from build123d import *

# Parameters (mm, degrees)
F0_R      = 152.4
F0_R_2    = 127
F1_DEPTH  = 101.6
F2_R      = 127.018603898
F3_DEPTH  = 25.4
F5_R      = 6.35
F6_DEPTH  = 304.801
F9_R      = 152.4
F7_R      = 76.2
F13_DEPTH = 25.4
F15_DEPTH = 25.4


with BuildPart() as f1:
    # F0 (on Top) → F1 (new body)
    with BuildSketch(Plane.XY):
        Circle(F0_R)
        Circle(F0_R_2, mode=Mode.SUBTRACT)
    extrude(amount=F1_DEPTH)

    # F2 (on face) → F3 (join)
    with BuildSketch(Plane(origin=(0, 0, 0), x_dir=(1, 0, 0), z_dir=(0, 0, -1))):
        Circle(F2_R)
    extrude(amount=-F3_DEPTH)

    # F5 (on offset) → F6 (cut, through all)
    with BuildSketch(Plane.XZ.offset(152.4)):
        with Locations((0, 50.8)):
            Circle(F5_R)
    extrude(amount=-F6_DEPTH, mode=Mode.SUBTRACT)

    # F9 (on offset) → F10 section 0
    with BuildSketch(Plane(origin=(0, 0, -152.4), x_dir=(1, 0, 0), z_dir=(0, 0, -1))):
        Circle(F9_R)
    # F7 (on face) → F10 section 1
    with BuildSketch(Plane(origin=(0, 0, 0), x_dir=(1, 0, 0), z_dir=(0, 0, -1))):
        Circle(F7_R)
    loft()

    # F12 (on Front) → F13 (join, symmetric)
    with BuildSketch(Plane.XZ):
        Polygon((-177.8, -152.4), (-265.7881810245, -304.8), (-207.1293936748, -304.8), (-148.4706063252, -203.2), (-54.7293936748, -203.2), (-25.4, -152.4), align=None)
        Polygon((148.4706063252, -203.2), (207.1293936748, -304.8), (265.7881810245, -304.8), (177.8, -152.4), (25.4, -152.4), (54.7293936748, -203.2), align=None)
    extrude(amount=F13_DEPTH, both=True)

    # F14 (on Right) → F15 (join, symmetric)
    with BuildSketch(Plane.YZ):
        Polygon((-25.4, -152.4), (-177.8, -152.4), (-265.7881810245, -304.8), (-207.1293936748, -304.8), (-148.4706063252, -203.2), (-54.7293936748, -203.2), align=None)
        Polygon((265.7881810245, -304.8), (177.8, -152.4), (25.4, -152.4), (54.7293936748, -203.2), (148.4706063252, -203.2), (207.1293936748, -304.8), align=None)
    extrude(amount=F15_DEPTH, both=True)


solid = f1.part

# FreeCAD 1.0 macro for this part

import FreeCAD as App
import Part
import Sketcher

V = App.Vector
Q = App.Units.Quantity

doc = App.newDocument("Part")
body = doc.addObject("PartDesign::Body", "Body")

sketch1 = doc.addObject("Sketcher::SketchObject", "Sketch")
body.addObject(sketch1)
sketch1.AttachmentSupport = (doc.XY_Plane, [""])
sketch1.MapMode = "FlatFace"
sketch1.addGeometry([
    Part.Circle(V(0, 0, 0), V(0, 0, 1), 152),
    Part.Circle(V(0, 0, 0), V(0, 0, 1), 127),
], False)
sketch1.addConstraint([
    Sketcher.Constraint("Coincident", 0, 3, -1, 1),
    Sketcher.Constraint("Coincident", 1, 3, -1, 1),
    Sketcher.Constraint("Diameter", 0, Q("12 in")),
    Sketcher.Constraint("Diameter", 1, Q("10 in")),
])
pad1 = doc.addObject("PartDesign::Pad", "Pad")
body.addObject(pad1)
pad1.Profile = sketch1
pad1.Length = Q("4 in")

sketch2 = doc.addObject("Sketcher::SketchObject", "Sketch001")
body.addObject(sketch2)
sketch2.AttachmentSupport = (doc.XY_Plane, [""])
sketch2.MapMode = "FlatFace"
sketch2.addGeometry(Part.Circle(V(0, 0, 0), V(0, 0, 1), 127), False)
sketch2.addConstraint([
    Sketcher.Constraint("Coincident", 0, 3, -1, 1),
    Sketcher.Constraint("Diameter", 0, Q("254.037208 mm")),
])
pad2 = doc.addObject("PartDesign::Pad", "Pad001")
body.addObject(pad2)
pad2.Profile = sketch2
pad2.Length = Q("1 in")

sketch3 = doc.addObject("Sketcher::SketchObject", "Sketch002")
body.addObject(sketch3)
sketch3.AttachmentSupport = (doc.XZ_Plane, [""])
sketch3.MapMode = "FlatFace"
sketch3.AttachmentOffset = App.Placement(V(0, 0, 6 * 25.4), App.Rotation())
sketch3.addGeometry(Part.Circle(V(0, 51, 0), V(0, 0, 1), 6), False)
sketch3.addConstraint([
    Sketcher.Constraint("PointOnObject", 0, 3, -2),
    Sketcher.Constraint("Diameter", 0, Q("0.5 in")),
    Sketcher.Constraint("DistanceY", -1, 1, 0, 3, Q("2 in")),
])
pocket1 = doc.addObject("PartDesign::Pocket", "Pocket")
body.addObject(pocket1)
pocket1.Profile = sketch3
pocket1.Type = "ThroughAll"

sketch4 = doc.addObject("Sketcher::SketchObject", "Sketch003")
body.addObject(sketch4)
sketch4.AttachmentSupport = (doc.XY_Plane, [""])
sketch4.MapMode = "FlatFace"
sketch4.AttachmentOffset = App.Placement(V(0, 0, -6 * 25.4), App.Rotation())
sketch4.addGeometry(Part.Circle(V(0, 0, 0), V(0, 0, 1), 152), False)
sketch4.addConstraint([
    Sketcher.Constraint("Coincident", 0, 3, -1, 1),
    Sketcher.Constraint("Diameter", 0, Q("12 in")),
])

sketch5 = doc.addObject("Sketcher::SketchObject", "Sketch004")
body.addObject(sketch5)
sketch5.AttachmentSupport = (doc.XY_Plane, [""])
sketch5.MapMode = "FlatFace"
sketch5.addGeometry(Part.Circle(V(0, 0, 0), V(0, 0, 1), 76), False)
sketch5.addConstraint([
    Sketcher.Constraint("Coincident", 0, 3, -1, 1),
    Sketcher.Constraint("Diameter", 0, Q("6 in")),
])

additiveloft = doc.addObject("PartDesign::AdditiveLoft", "AdditiveLoft")
body.addObject(additiveloft)
additiveloft.Profile = sketch4
additiveloft.Sections = [sketch5]

sketch6 = doc.addObject("Sketcher::SketchObject", "Sketch005")
body.addObject(sketch6)
sketch6.AttachmentSupport = (doc.XZ_Plane, [""])
sketch6.MapMode = "FlatFace"
sketch6.addGeometry([
    Part.LineSegment(V(-178, -152, 0), V(-266, -305, 0)),
    Part.LineSegment(V(-266, -305, 0), V(-207, -305, 0)),
    Part.LineSegment(V(-207, -305, 0), V(-148, -203, 0)),
    Part.LineSegment(V(-148, -203, 0), V(-55, -203, 0)),
    Part.LineSegment(V(-55, -203, 0), V(-25, -152, 0)),
    Part.LineSegment(V(-25, -152, 0), V(-178, -152, 0)),
    Part.LineSegment(V(148, -203, 0), V(207, -305, 0)),
    Part.LineSegment(V(207, -305, 0), V(266, -305, 0)),
    Part.LineSegment(V(266, -305, 0), V(178, -152, 0)),
    Part.LineSegment(V(178, -152, 0), V(25, -152, 0)),
    Part.LineSegment(V(25, -152, 0), V(55, -203, 0)),
    Part.LineSegment(V(55, -203, 0), V(148, -203, 0)),
], False)
sketch6.addConstraint([
    Sketcher.Constraint("Coincident", 0, 2, 1, 1),
    Sketcher.Constraint("Coincident", 1, 2, 2, 1),
    Sketcher.Constraint("Coincident", 2, 2, 3, 1),
    Sketcher.Constraint("Coincident", 3, 2, 4, 1),
    Sketcher.Constraint("Coincident", 4, 2, 5, 1),
    Sketcher.Constraint("Coincident", 5, 2, 0, 1),
    Sketcher.Constraint("Coincident", 6, 2, 7, 1),
    Sketcher.Constraint("Coincident", 7, 2, 8, 1),
    Sketcher.Constraint("Coincident", 8, 2, 9, 1),
    Sketcher.Constraint("Coincident", 9, 2, 10, 1),
    Sketcher.Constraint("Coincident", 10, 2, 11, 1),
    Sketcher.Constraint("Coincident", 11, 2, 6, 1),
    Sketcher.Constraint("Horizontal", 1),
    Sketcher.Constraint("Horizontal", 3),
    Sketcher.Constraint("Horizontal", 5),
    Sketcher.Constraint("Horizontal", 7),
    Sketcher.Constraint("Horizontal", 9),
    Sketcher.Constraint("Horizontal", 11),
    Sketcher.Constraint("Symmetric", 1, 2, 6, 2, -2),
    Sketcher.Constraint("Symmetric", 5, 2, 8, 2, -2),
    Sketcher.Constraint("Symmetric", 3, 2, 10, 2, -2),
    Sketcher.Constraint("Parallel", 0, 2),
    Sketcher.Constraint("Parallel", 2, 4),
    Sketcher.Constraint("Parallel", 6, 8),
    Sketcher.Constraint("Parallel", 8, 10),
    Sketcher.Constraint("Equal", 1, 7),
    Sketcher.Constraint("DistanceX", 5, 2, 5, 1, Q("6 in")),
    Sketcher.Constraint("DistanceY", 0, 2, -1, 1, Q("12 in")),
    Sketcher.Constraint("DistanceY", 2, 2, -1, 1, Q("8 in")),
    Sketcher.Constraint("DistanceX", 4, 2, -1, 1, Q("1 in")),
    Sketcher.Constraint("DistanceY", 4, 2, -1, 1, Q("6 in")),
    Sketcher.Constraint("Angle", 0, Q("-120 deg")),
    Sketcher.Constraint("DistanceX", 1, 2, 3, 2, Q("6 in")),
])
pad3 = doc.addObject("PartDesign::Pad", "Pad002")
body.addObject(pad3)
pad3.Profile = sketch6
pad3.Length = Q("2 in")
pad3.Midplane = True

sketch7 = doc.addObject("Sketcher::SketchObject", "Sketch006")
body.addObject(sketch7)
sketch7.AttachmentSupport = (doc.YZ_Plane, [""])
sketch7.MapMode = "FlatFace"
sketch7.addGeometry([
    Part.LineSegment(V(-25, -152, 0), V(-178, -152, 0)),
    Part.LineSegment(V(-178, -152, 0), V(-266, -305, 0)),
    Part.LineSegment(V(-266, -305, 0), V(-207, -305, 0)),
    Part.LineSegment(V(-207, -305, 0), V(-148, -203, 0)),
    Part.LineSegment(V(-148, -203, 0), V(-55, -203, 0)),
    Part.LineSegment(V(-55, -203, 0), V(-25, -152, 0)),
    Part.LineSegment(V(266, -305, 0), V(178, -152, 0)),
    Part.LineSegment(V(178, -152, 0), V(25, -152, 0)),
    Part.LineSegment(V(25, -152, 0), V(55, -203, 0)),
    Part.LineSegment(V(55, -203, 0), V(148, -203, 0)),
    Part.LineSegment(V(148, -203, 0), V(207, -305, 0)),
    Part.LineSegment(V(207, -305, 0), V(266, -305, 0)),
], False)
sketch7.addConstraint([
    Sketcher.Constraint("Coincident", 0, 2, 1, 1),
    Sketcher.Constraint("Coincident", 1, 2, 2, 1),
    Sketcher.Constraint("Coincident", 2, 2, 3, 1),
    Sketcher.Constraint("Coincident", 3, 2, 4, 1),
    Sketcher.Constraint("Coincident", 4, 2, 5, 1),
    Sketcher.Constraint("Coincident", 5, 2, 0, 1),
    Sketcher.Constraint("Coincident", 6, 2, 7, 1),
    Sketcher.Constraint("Coincident", 7, 2, 8, 1),
    Sketcher.Constraint("Coincident", 8, 2, 9, 1),
    Sketcher.Constraint("Coincident", 9, 2, 10, 1),
    Sketcher.Constraint("Coincident", 10, 2, 11, 1),
    Sketcher.Constraint("Coincident", 11, 2, 6, 1),
    Sketcher.Constraint("Horizontal", 0),
    Sketcher.Constraint("Horizontal", 2),
    Sketcher.Constraint("Horizontal", 4),
    Sketcher.Constraint("Horizontal", 7),
    Sketcher.Constraint("Horizontal", 9),
    Sketcher.Constraint("Horizontal", 11),
    Sketcher.Constraint("Symmetric", 0, 2, 6, 2, -2),
    Sketcher.Constraint("Symmetric", 4, 2, 8, 2, -2),
    Sketcher.Constraint("Symmetric", 2, 2, 10, 2, -2),
    Sketcher.Constraint("Parallel", 1, 3),
    Sketcher.Constraint("Parallel", 3, 5),
    Sketcher.Constraint("Parallel", 6, 8),
    Sketcher.Constraint("Parallel", 8, 10),
    Sketcher.Constraint("Equal", 0, 7),
    Sketcher.Constraint("DistanceX", 0, 2, 0, 1, Q("6 in")),
    Sketcher.Constraint("DistanceX", 0, 2, -1, 1, Q("7 in")),
    Sketcher.Constraint("DistanceY", 0, 2, -1, 1, Q("6 in")),
    Sketcher.Constraint("DistanceY", 1, 2, -1, 1, Q("12 in")),
    Sketcher.Constraint("DistanceY", 3, 2, -1, 1, Q("8 in")),
    Sketcher.Constraint("Angle", 1, Q("-120 deg")),
    Sketcher.Constraint("DistanceX", 2, 2, 4, 2, Q("6 in")),
])
pad4 = doc.addObject("PartDesign::Pad", "Pad003")
body.addObject(pad4)
pad4.Profile = sketch7
pad4.Length = Q("2 in")
pad4.Midplane = True

doc.recompute()
